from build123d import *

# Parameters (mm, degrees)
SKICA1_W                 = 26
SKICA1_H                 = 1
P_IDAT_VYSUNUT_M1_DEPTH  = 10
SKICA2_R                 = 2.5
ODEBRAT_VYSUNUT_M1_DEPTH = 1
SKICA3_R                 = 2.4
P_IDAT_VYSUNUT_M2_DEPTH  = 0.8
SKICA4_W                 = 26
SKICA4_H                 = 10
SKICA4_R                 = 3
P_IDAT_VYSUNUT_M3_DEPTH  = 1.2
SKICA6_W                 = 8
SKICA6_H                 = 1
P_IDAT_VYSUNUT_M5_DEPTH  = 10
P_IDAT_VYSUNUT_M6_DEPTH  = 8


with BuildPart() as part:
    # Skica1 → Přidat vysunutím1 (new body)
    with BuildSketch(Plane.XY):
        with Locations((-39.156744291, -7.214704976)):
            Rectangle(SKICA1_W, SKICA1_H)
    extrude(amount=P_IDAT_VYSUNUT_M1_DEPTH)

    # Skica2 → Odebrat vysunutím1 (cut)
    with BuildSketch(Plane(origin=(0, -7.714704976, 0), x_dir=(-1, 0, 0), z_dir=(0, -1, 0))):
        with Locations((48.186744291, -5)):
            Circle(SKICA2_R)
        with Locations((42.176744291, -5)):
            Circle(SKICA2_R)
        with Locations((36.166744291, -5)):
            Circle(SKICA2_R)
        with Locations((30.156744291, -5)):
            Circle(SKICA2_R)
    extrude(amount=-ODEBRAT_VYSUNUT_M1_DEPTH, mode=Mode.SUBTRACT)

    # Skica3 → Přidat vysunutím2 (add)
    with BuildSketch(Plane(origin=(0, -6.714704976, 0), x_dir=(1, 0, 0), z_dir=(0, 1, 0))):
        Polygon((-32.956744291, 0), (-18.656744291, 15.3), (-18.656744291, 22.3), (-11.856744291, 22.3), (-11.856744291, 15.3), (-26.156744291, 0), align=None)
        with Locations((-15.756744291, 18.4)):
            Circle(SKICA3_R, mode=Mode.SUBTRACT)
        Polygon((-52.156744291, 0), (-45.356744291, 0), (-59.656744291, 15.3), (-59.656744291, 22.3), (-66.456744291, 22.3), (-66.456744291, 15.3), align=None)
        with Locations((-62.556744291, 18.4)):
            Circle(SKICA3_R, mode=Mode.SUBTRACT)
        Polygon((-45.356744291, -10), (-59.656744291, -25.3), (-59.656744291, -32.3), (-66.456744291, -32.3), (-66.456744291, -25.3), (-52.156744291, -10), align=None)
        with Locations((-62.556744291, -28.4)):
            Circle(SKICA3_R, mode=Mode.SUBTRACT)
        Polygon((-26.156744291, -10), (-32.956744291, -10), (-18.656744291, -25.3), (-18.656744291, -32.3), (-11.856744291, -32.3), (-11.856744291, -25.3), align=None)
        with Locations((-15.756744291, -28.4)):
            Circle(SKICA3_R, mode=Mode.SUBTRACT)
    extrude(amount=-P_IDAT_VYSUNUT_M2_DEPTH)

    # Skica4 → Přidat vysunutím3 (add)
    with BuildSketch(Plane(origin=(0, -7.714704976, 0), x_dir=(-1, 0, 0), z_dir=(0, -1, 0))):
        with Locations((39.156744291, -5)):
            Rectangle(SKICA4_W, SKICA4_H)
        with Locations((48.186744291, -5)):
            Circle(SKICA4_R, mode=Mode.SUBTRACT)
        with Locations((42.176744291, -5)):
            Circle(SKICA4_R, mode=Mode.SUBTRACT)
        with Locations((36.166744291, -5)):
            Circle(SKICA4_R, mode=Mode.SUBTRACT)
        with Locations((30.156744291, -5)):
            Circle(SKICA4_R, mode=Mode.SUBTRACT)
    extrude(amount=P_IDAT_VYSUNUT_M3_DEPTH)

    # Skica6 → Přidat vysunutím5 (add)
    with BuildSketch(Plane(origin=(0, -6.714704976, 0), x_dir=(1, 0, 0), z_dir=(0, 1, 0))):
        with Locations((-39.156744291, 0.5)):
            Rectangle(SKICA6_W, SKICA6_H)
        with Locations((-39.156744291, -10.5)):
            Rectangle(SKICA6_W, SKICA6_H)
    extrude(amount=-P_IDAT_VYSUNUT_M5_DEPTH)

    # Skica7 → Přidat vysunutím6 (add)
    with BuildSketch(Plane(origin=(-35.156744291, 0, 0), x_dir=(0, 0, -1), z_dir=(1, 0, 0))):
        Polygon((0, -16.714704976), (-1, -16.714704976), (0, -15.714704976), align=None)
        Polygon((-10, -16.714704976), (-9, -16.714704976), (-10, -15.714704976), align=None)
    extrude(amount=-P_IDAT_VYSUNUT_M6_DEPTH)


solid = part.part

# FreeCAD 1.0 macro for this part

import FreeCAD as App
import Part
import Sketcher

V = App.Vector
Q = App.Units.Quantity


def add_polygon(sketch, points):
    """Adds a closed chain of lines whose ends are joined by coincident constraints."""
    first, n = sketch.GeometryCount, len(points)
    for a, b in zip(points, points[1:] + points[:1]):
        sketch.addGeometry(Part.LineSegment(App.Vector(*a, 0), App.Vector(*b, 0)), False)
    for i in range(n):
        sketch.addConstraint(Sketcher.Constraint("Coincident", first + i, 2, first + (i + 1) % n, 1))

doc = App.newDocument("Part")
body = doc.addObject("PartDesign::Body", "Body")

# Sketch on XY plane
sketch1 = doc.addObject("Sketcher::SketchObject", "Sketch")
body.addObject(sketch1)
sketch1.AttachmentSupport = (doc.XY_Plane, [""])
sketch1.MapMode = "FlatFace"
add_polygon(sketch1, [(-52.2, -6.7), (-52.2, -7.7), (-26.2, -7.7), (-26.2, -6.7)])  # lines 0-3
sketch1.addConstraint(Sketcher.Constraint("Vertical", 0))
sketch1.addConstraint(Sketcher.Constraint("Horizontal", 1))
sketch1.addConstraint(Sketcher.Constraint("Vertical", 2))
sketch1.addConstraint(Sketcher.Constraint("Horizontal", 3))
sketch1.addConstraint(Sketcher.Constraint("DistanceX", 1, 1, 1, 2, Q("26 mm")))
sketch1.addConstraint(Sketcher.Constraint("DistanceY", 0, 2, 0, 1, Q("1 mm")))
sketch1.addConstraint(Sketcher.Constraint("DistanceX", 0, 2, -1, 1, Q("52.156744 mm")))
sketch1.addConstraint(Sketcher.Constraint("DistanceY", 0, 2, -1, 1, Q("7.714705 mm")))
pad1 = doc.addObject("PartDesign::Pad", "Pad")
body.addObject(pad1)
pad1.Profile = sketch1
pad1.Length = 10

# Sketch on XZ plane
sketch2 = doc.addObject("Sketcher::SketchObject", "Sketch001")
body.addObject(sketch2)
sketch2.AttachmentSupport = (doc.XZ_Plane, [""])
sketch2.MapMode = "FlatFace"
sketch2.AttachmentOffset = App.Placement(V(0, 0, 7.714705), App.Rotation())
sketch2.addGeometry(Part.Circle(V(-48.2, 5, 0), V(0, 0, 1), 2.5), False)
sketch2.addGeometry(Part.Circle(V(-42.2, 5, 0), V(0, 0, 1), 2.5), False)
sketch2.addGeometry(Part.Circle(V(-36.2, 5, 0), V(0, 0, 1), 2.5), False)
sketch2.addGeometry(Part.Circle(V(-30.2, 5, 0), V(0, 0, 1), 2.5), False)
sketch2.addConstraint(Sketcher.Constraint("Equal", 0, 1))
sketch2.addConstraint(Sketcher.Constraint("Equal", 1, 2))
sketch2.addConstraint(Sketcher.Constraint("Equal", 2, 3))
sketch2.addConstraint(Sketcher.Constraint("Horizontal", 0, 3, 1, 3))
sketch2.addConstraint(Sketcher.Constraint("Horizontal", 1, 3, 2, 3))
sketch2.addConstraint(Sketcher.Constraint("Horizontal", 2, 3, 3, 3))
sketch2.addConstraint(Sketcher.Constraint("Diameter", 0, Q("5 mm")))
sketch2.addConstraint(Sketcher.Constraint("DistanceY", -1, 1, 0, 3, Q("5 mm")))
sketch2.addConstraint(Sketcher.Constraint("DistanceX", 0, 3, 1, 3, Q("6.01 mm")))
sketch2.addConstraint(Sketcher.Constraint("DistanceX", 1, 3, 2, 3, Q("6.01 mm")))
sketch2.addConstraint(Sketcher.Constraint("DistanceX", 2, 3, 3, 3, Q("6.01 mm")))
sketch2.addConstraint(Sketcher.Constraint("DistanceX", 0, 3, -1, 1, Q("48.186744 mm")))
pocket1 = doc.addObject("PartDesign::Pocket", "Pocket")
body.addObject(pocket1)
pocket1.Profile = sketch2
pocket1.Length = 1

# Sketch on XZ plane
sketch3 = doc.addObject("Sketcher::SketchObject", "Sketch002")
body.addObject(sketch3)
sketch3.AttachmentSupport = (doc.XZ_Plane, [""])
sketch3.MapMode = "FlatFace"
sketch3.AttachmentOffset = App.Placement(V(0, 0, 6.714705), App.Rotation())
add_polygon(sketch3, [(-18.7, -15.3), (-33, 0), (-26.2, 0), (-11.9, -15.3), (-11.9, -22.3), (-18.7, -22.3)])  # lines 0-5
sketch3.addGeometry(Part.Circle(V(-15.8, -18.4, 0), V(0, 0, 1), 2.4), False)  # 6
add_polygon(sketch3, [(-52.2, 0), (-45.4, 0), (-59.7, -15.3), (-59.7, -22.3), (-66.5, -22.3), (-66.5, -15.3)])  # lines 7-12
sketch3.addGeometry(Part.Circle(V(-62.6, -18.4, 0), V(0, 0, 1), 2.4), False)  # 13
add_polygon(sketch3, [(-59.7, 25.3), (-45.4, 10), (-52.2, 10), (-66.5, 25.3), (-66.5, 32.3), (-59.7, 32.3)])  # lines 14-19
sketch3.addGeometry(Part.Circle(V(-62.6, 28.4, 0), V(0, 0, 1), 2.4), False)  # 20
add_polygon(sketch3, [(-26.2, 10), (-33, 10), (-18.7, 25.3), (-18.7, 32.3), (-11.9, 32.3), (-11.9, 25.3)])  # lines 21-26
sketch3.addGeometry(Part.Circle(V(-15.8, 28.4, 0), V(0, 0, 1), 2.4), False)  # 27
sketch3.addConstraint(Sketcher.Constraint("Horizontal", 1))
sketch3.addConstraint(Sketcher.Constraint("Vertical", 3))
sketch3.addConstraint(Sketcher.Constraint("Horizontal", 4))
sketch3.addConstraint(Sketcher.Constraint("Vertical", 5))
sketch3.addConstraint(Sketcher.Constraint("Horizontal", 7))
sketch3.addConstraint(Sketcher.Constraint("Vertical", 9))
sketch3.addConstraint(Sketcher.Constraint("Horizontal", 10))
sketch3.addConstraint(Sketcher.Constraint("Vertical", 11))
sketch3.addConstraint(Sketcher.Constraint("Horizontal", 15))
sketch3.addConstraint(Sketcher.Constraint("Vertical", 17))
sketch3.addConstraint(Sketcher.Constraint("Horizontal", 18))
sketch3.addConstraint(Sketcher.Constraint("Vertical", 19))
sketch3.addConstraint(Sketcher.Constraint("Horizontal", 21))
sketch3.addConstraint(Sketcher.Constraint("Vertical", 23))
sketch3.addConstraint(Sketcher.Constraint("Horizontal", 24))
sketch3.addConstraint(Sketcher.Constraint("Vertical", 25))
sketch3.addConstraint(Sketcher.Constraint("Equal", 6, 13))
sketch3.addConstraint(Sketcher.Constraint("Equal", 13, 20))
sketch3.addConstraint(Sketcher.Constraint("Equal", 20, 27))
sketch3.addConstraint(Sketcher.Constraint("PointOnObject", 0, 2, -1))
sketch3.addConstraint(Sketcher.Constraint("PointOnObject", 7, 2, -1))
sketch3.addConstraint(Sketcher.Constraint("Parallel", 0, 2))
sketch3.addConstraint(Sketcher.Constraint("Parallel", 8, 12))
sketch3.addConstraint(Sketcher.Constraint("Parallel", 2, 14))
sketch3.addConstraint(Sketcher.Constraint("Parallel", 14, 16))
sketch3.addConstraint(Sketcher.Constraint("Parallel", 12, 22))
sketch3.addConstraint(Sketcher.Constraint("Parallel", 22, 26))
sketch3.addConstraint(Sketcher.Constraint("Horizontal", 6, 3, 13, 3))
sketch3.addConstraint(Sketcher.Constraint("Horizontal", 20, 3, 27, 3))
sketch3.addConstraint(Sketcher.Constraint("Horizontal", 2, 2, 5, 2))
sketch3.addConstraint(Sketcher.Constraint("Horizontal", 5, 2, 8, 2))
sketch3.addConstraint(Sketcher.Constraint("Horizontal", 4, 2, 9, 2))
sketch3.addConstraint(Sketcher.Constraint("Horizontal", 8, 2, 11, 2))
sketch3.addConstraint(Sketcher.Constraint("Horizontal", 16, 2, 19, 2))
sketch3.addConstraint(Sketcher.Constraint("Horizontal", 15, 2, 21, 2))
sketch3.addConstraint(Sketcher.Constraint("Horizontal", 19, 2, 22, 2))
sketch3.addConstraint(Sketcher.Constraint("Horizontal", 18, 2, 23, 2))
sketch3.addConstraint(Sketcher.Constraint("Horizontal", 22, 2, 25, 2))
sketch3.addConstraint(Sketcher.Constraint("Vertical", 13, 3, 20, 3))
sketch3.addConstraint(Sketcher.Constraint("Vertical", 6, 3, 27, 3))
sketch3.addConstraint(Sketcher.Constraint("Vertical", 7, 2, 14, 2))
sketch3.addConstraint(Sketcher.Constraint("Vertical", 12, 2, 15, 2))
sketch3.addConstraint(Sketcher.Constraint("Vertical", 11, 2, 16, 2))
sketch3.addConstraint(Sketcher.Constraint("Vertical", 0, 2, 21, 2))
sketch3.addConstraint(Sketcher.Constraint("Vertical", 5, 2, 22, 2))
sketch3.addConstraint(Sketcher.Constraint("Vertical", 3, 2, 24, 2))
sketch3.addConstraint(Sketcher.Constraint("Equal", 4, 7))
sketch3.addConstraint(Sketcher.Constraint("Equal", 11, 17))
sketch3.addConstraint(Sketcher.Constraint("Diameter", 6, Q("4.8 mm")))
sketch3.addConstraint(Sketcher.Constraint("DistanceY", 3, 2, 3, 1, Q("7 mm")))
sketch3.addConstraint(Sketcher.Constraint("DistanceX", 1, 1, 1, 2, Q("6.8 mm")))
sketch3.addConstraint(Sketcher.Constraint("DistanceY", -1, 1, 14, 2, Q("10 mm")))
sketch3.addConstraint(Sketcher.Constraint("DistanceX", 8, 2, 5, 2, Q("41 mm")))
sketch3.addConstraint(Sketcher.Constraint("DistanceY", 6, 3, -1, 1, Q("18.4 mm")))
sketch3.addConstraint(Sketcher.Constraint("DistanceY", -1, 1, 20, 3, Q("28.4 mm")))
sketch3.addConstraint(Sketcher.Constraint("DistanceY", 2, 2, -1, 1, Q("15.3 mm")))
sketch3.addConstraint(Sketcher.Constraint("DistanceX", 13, 3, 6, 3, Q("46.8 mm")))
sketch3.addConstraint(Sketcher.Constraint("DistanceX", 0, 2, 6, 3, Q("17.2 mm")))
sketch3.addConstraint(Sketcher.Constraint("DistanceX", 6, 3, 2, 2, Q("3.9 mm")))
sketch3.addConstraint(Sketcher.Constraint("DistanceX", 6, 3, -1, 1, Q("15.756744 mm")))
pad2 = doc.addObject("PartDesign::Pad", "Pad001")
body.addObject(pad2)
pad2.Profile = sketch3
pad2.Length = 0.8

# Sketch on XZ plane
sketch4 = doc.addObject("Sketcher::SketchObject", "Sketch003")
body.addObject(sketch4)
sketch4.AttachmentSupport = (doc.XZ_Plane, [""])
sketch4.MapMode = "FlatFace"
sketch4.AttachmentOffset = App.Placement(V(0, 0, 7.714705), App.Rotation())
add_polygon(sketch4, [(-26.2, 0), (-26.2, 10), (-52.2, 10), (-52.2, 0)])  # lines 0-3
sketch4.addGeometry(Part.Circle(V(-30.2, 5, 0), V(0, 0, 1), 3), False)  # 4
sketch4.addGeometry(Part.Circle(V(-36.2, 5, 0), V(0, 0, 1), 3), False)  # 5
sketch4.addGeometry(Part.Circle(V(-42.2, 5, 0), V(0, 0, 1), 3), False)  # 6
sketch4.addGeometry(Part.Circle(V(-48.2, 5, 0), V(0, 0, 1), 3), False)  # 7
sketch4.addConstraint(Sketcher.Constraint("Vertical", 0))
sketch4.addConstraint(Sketcher.Constraint("Horizontal", 1))
sketch4.addConstraint(Sketcher.Constraint("Vertical", 2))
sketch4.addConstraint(Sketcher.Constraint("Horizontal", 3))
sketch4.addConstraint(Sketcher.Constraint("Equal", 4, 5))
sketch4.addConstraint(Sketcher.Constraint("Equal", 5, 6))
sketch4.addConstraint(Sketcher.Constraint("Equal", 6, 7))
sketch4.addConstraint(Sketcher.Constraint("PointOnObject", 2, 2, -1))
sketch4.addConstraint(Sketcher.Constraint("Horizontal", 4, 3, 5, 3))
sketch4.addConstraint(Sketcher.Constraint("Horizontal", 5, 3, 6, 3))
sketch4.addConstraint(Sketcher.Constraint("Horizontal", 6, 3, 7, 3))
sketch4.addConstraint(Sketcher.Constraint("Diameter", 4, Q("6 mm")))
sketch4.addConstraint(Sketcher.Constraint("DistanceX", 1, 2, 1, 1, Q("26 mm")))
sketch4.addConstraint(Sketcher.Constraint("DistanceY", 0, 1, 0, 2, Q("10 mm")))
sketch4.addConstraint(Sketcher.Constraint("DistanceY", -1, 1, 4, 3, Q("5 mm")))
sketch4.addConstraint(Sketcher.Constraint("DistanceX", 4, 3, 0, 2, Q("4 mm")))
sketch4.addConstraint(Sketcher.Constraint("DistanceX", 5, 3, 4, 3, Q("6.01 mm")))
sketch4.addConstraint(Sketcher.Constraint("DistanceX", 6, 3, 5, 3, Q("6.01 mm")))
sketch4.addConstraint(Sketcher.Constraint("DistanceX", 7, 3, 6, 3, Q("6.01 mm")))
sketch4.addConstraint(Sketcher.Constraint("DistanceX", 4, 3, -1, 1, Q("30.156744 mm")))
pad3 = doc.addObject("PartDesign::Pad", "Pad002")
body.addObject(pad3)
pad3.Profile = sketch4
pad3.Length = 1.2

# Sketch on XZ plane
sketch5 = doc.addObject("Sketcher::SketchObject", "Sketch004")
body.addObject(sketch5)
sketch5.AttachmentSupport = (doc.XZ_Plane, [""])
sketch5.MapMode = "FlatFace"
sketch5.AttachmentOffset = App.Placement(V(0, 0, 6.714705), App.Rotation())
add_polygon(sketch5, [(-43.2, -1), (-43.2, 0), (-35.2, 0), (-35.2, -1)])  # lines 0-3
add_polygon(sketch5, [(-43.2, 10), (-43.2, 11), (-35.2, 11), (-35.2, 10)])  # lines 4-7
sketch5.addConstraint(Sketcher.Constraint("Vertical", 0))
sketch5.addConstraint(Sketcher.Constraint("Horizontal", 1))
sketch5.addConstraint(Sketcher.Constraint("Vertical", 2))
sketch5.addConstraint(Sketcher.Constraint("Horizontal", 3))
sketch5.addConstraint(Sketcher.Constraint("Vertical", 4))
sketch5.addConstraint(Sketcher.Constraint("Horizontal", 5))
sketch5.addConstraint(Sketcher.Constraint("Vertical", 6))
sketch5.addConstraint(Sketcher.Constraint("Horizontal", 7))
sketch5.addConstraint(Sketcher.Constraint("PointOnObject", 0, 2, -1))
sketch5.addConstraint(Sketcher.Constraint("Vertical", 3, 2, 4, 2))
sketch5.addConstraint(Sketcher.Constraint("Vertical", 2, 2, 5, 2))
sketch5.addConstraint(Sketcher.Constraint("Equal", 2, 4))
sketch5.addConstraint(Sketcher.Constraint("DistanceX", 1, 1, 1, 2, Q("8 mm")))
sketch5.addConstraint(Sketcher.Constraint("DistanceY", 0, 1, 0, 2, Q("1 mm")))
sketch5.addConstraint(Sketcher.Constraint("DistanceY", -1, 1, 4, 2, Q("11 mm")))
sketch5.addConstraint(Sketcher.Constraint("DistanceX", 0, 2, -1, 1, Q("43.156744 mm")))
pad4 = doc.addObject("PartDesign::Pad", "Pad003")
body.addObject(pad4)
pad4.Profile = sketch5
pad4.Length = 10

# Sketch on YZ plane
sketch6 = doc.addObject("Sketcher::SketchObject", "Sketch005")
body.addObject(sketch6)
sketch6.AttachmentSupport = (doc.YZ_Plane, [""])
sketch6.MapMode = "FlatFace"
sketch6.AttachmentOffset = App.Placement(V(0, 0, -35.156744), App.Rotation())
add_polygon(sketch6, [(-16.7, 1), (-16.7, 0), (-15.7, 0)])  # lines 0-2
add_polygon(sketch6, [(-16.7, 10), (-16.7, 9), (-15.7, 10)])  # lines 3-5
sketch6.addConstraint(Sketcher.Constraint("Vertical", 0))
sketch6.addConstraint(Sketcher.Constraint("Horizontal", 1))
sketch6.addConstraint(Sketcher.Constraint("Vertical", 3))
sketch6.addConstraint(Sketcher.Constraint("Horizontal", 5))
sketch6.addConstraint(Sketcher.Constraint("PointOnObject", 0, 2, -1))
sketch6.addConstraint(Sketcher.Constraint("Perpendicular", 2, 4))
sketch6.addConstraint(Sketcher.Constraint("Vertical", 2, 2, 3, 2))
sketch6.addConstraint(Sketcher.Constraint("Vertical", 1, 2, 4, 2))
sketch6.addConstraint(Sketcher.Constraint("Equal", 5, 0))
sketch6.addConstraint(Sketcher.Constraint("DistanceX", 1, 1, 1, 2, Q("1 mm")))
sketch6.addConstraint(Sketcher.Constraint("DistanceY", -1, 1, 3, 2, Q("9 mm")))
sketch6.addConstraint(Sketcher.Constraint("DistanceX", 0, 2, -1, 1, Q("16.714705 mm")))
pad5 = doc.addObject("PartDesign::Pad", "Pad004")
body.addObject(pad5)
pad5.Profile = sketch6
pad5.Length = 8
pad5.Reversed = True

doc.recompute()
